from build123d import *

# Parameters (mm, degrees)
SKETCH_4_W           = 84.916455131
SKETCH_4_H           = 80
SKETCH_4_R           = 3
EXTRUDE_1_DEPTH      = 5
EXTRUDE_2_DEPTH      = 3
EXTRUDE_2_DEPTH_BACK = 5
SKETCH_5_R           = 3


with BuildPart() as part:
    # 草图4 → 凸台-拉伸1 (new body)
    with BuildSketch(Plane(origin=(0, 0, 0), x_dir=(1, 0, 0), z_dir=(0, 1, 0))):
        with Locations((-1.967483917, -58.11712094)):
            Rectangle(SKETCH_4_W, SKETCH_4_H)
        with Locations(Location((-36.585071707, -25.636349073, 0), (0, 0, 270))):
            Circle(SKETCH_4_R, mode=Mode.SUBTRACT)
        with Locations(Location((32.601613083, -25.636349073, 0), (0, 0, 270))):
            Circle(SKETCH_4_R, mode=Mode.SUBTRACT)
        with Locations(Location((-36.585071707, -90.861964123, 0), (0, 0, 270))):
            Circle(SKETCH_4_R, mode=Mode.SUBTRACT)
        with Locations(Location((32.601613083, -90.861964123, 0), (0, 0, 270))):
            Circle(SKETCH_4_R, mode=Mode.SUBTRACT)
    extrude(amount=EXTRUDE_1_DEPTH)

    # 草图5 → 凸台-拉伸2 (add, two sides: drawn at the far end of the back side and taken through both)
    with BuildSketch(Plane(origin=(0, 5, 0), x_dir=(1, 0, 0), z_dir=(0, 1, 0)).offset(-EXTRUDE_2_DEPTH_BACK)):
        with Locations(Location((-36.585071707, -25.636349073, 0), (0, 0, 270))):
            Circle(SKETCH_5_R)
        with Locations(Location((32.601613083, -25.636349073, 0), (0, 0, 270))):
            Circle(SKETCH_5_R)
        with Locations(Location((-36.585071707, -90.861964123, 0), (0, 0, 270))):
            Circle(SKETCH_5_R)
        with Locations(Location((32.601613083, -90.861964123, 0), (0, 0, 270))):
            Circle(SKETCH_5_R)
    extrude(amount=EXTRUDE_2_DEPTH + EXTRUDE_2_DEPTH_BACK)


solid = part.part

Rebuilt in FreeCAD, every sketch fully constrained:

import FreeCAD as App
import Part
import Sketcher

doc = App.newDocument("Part")
params = doc.addObject("Spreadsheet::Sheet", "Params")
for row, (alias, value) in enumerate([
    ("sketch1_diameter", "6 mm"),
    ("sketch1_height", "80 mm"),
    ("pad1_length", "5 mm"),
    ("sketch2_diameter", "6 mm"),
    ("pad2_length", "3 mm"),
    ("pad2_length2", "5 mm"),
], start=1):
    params.set(f"A{row}", alias)
    params.set(f"B{row}", "=" + value)
    params.setAlias(f"B{row}", alias)

body = doc.addObject("PartDesign::Body", "Body")

# Sketch on XZ plane
sketch1 = body.newObject("Sketcher::SketchObject", "Sketch")
sketch1.AttachmentSupport = (doc.getObject("XZ_Plane"), [""])
sketch1.MapMode = "FlatFace"
sketch1.addGeometry([
    Part.LineSegment(App.Vector(-44.425711, 18.117121, 0), App.Vector(-44.425711, 98.117121, 0)),  # 0
    Part.LineSegment(App.Vector(-44.425711, 98.117121, 0), App.Vector(40.490744, 98.117121, 0)),  # 1
    Part.LineSegment(App.Vector(40.490744, 98.117121, 0), App.Vector(40.490744, 18.117121, 0)),  # 2
    Part.LineSegment(App.Vector(40.490744, 18.117121, 0), App.Vector(-44.425711, 18.117121, 0)),  # 3
    Part.Circle(App.Vector(-36.585072, 90.861964, 0), App.Vector(0, 0, 1), 3),  # 4
    Part.Circle(App.Vector(32.601613, 90.861964, 0), App.Vector(0, 0, 1), 3),  # 5
    Part.Circle(App.Vector(-36.585072, 25.636349, 0), App.Vector(0, 0, 1), 3),  # 6
    Part.Circle(App.Vector(32.601613, 25.636349, 0), App.Vector(0, 0, 1), 3),  # 7
], False)
sketch1.addConstraint([
    Sketcher.Constraint("Coincident", 0, 2, 1, 1),
    Sketcher.Constraint("Coincident", 1, 2, 2, 1),
    Sketcher.Constraint("Coincident", 2, 2, 3, 1),
    Sketcher.Constraint("Coincident", 3, 2, 0, 1),
    Sketcher.Constraint("Vertical", 0),
    Sketcher.Constraint("Horizontal", 1),
    Sketcher.Constraint("Vertical", 2),
    Sketcher.Constraint("Horizontal", 3),
    Sketcher.Constraint("Equal", 4, 5),
    Sketcher.Constraint("Equal", 5, 6),
    Sketcher.Constraint("Equal", 6, 7),
    Sketcher.Constraint("Horizontal", 4, 3, 5, 3),
    Sketcher.Constraint("Horizontal", 6, 3, 7, 3),
    Sketcher.Constraint("Vertical", 4, 3, 6, 3),
    Sketcher.Constraint("Vertical", 5, 3, 7, 3),
    Sketcher.Constraint("Diameter", 4, 6.0),
    Sketcher.Constraint("DistanceY", 0, 1, 0, 2, 80.0),
    Sketcher.Constraint("DistanceX", 1, 1, 1, 2, 84.916455),
    Sketcher.Constraint("DistanceX", 4, 3, -1, 1, 36.585072),
    Sketcher.Constraint("DistanceY", -1, 1, 6, 3, 25.636349),
    Sketcher.Constraint("DistanceX", 0, 2, -1, 1, 44.425711),
    Sketcher.Constraint("DistanceY", -1, 1, 0, 2, 98.117121),
    Sketcher.Constraint("DistanceX", 5, 3, 1, 2, 7.889131),
    Sketcher.Constraint("DistanceY", -1, 1, 4, 3, 90.861964),
])
sketch1.setExpression("Constraints[15]", "Params.sketch1_diameter")
sketch1.setExpression("Constraints[16]", "Params.sketch1_height")
pad1 = body.newObject("PartDesign::Pad", "Pad")
pad1.Profile = sketch1
pad1.setExpression("Length", "Params.pad1_length")
pad1.Reversed = True

# Sketch on XZ plane
sketch2 = body.newObject("Sketcher::SketchObject", "Sketch001")
sketch2.AttachmentSupport = (doc.getObject("XZ_Plane"), [""])
sketch2.MapMode = "FlatFace"
sketch2.AttachmentOffset = App.Placement(App.Vector(0, 0, -5), App.Rotation())
sketch2.addGeometry([
    Part.Circle(App.Vector(-36.585072, 25.636349, 0), App.Vector(0, 0, 1), 3),
    Part.Circle(App.Vector(32.601613, 25.636349, 0), App.Vector(0, 0, 1), 3),
    Part.Circle(App.Vector(-36.585072, 90.861964, 0), App.Vector(0, 0, 1), 3),
    Part.Circle(App.Vector(32.601613, 90.861964, 0), App.Vector(0, 0, 1), 3),
], False)
sketch2.addConstraint([
    Sketcher.Constraint("Equal", 0, 1),
    Sketcher.Constraint("Equal", 1, 2),
    Sketcher.Constraint("Equal", 2, 3),
    Sketcher.Constraint("Horizontal", 0, 3, 1, 3),
    Sketcher.Constraint("Horizontal", 2, 3, 3, 3),
    Sketcher.Constraint("Vertical", 0, 3, 2, 3),
    Sketcher.Constraint("Vertical", 1, 3, 3, 3),
    Sketcher.Constraint("Diameter", 0, 6.0),
    Sketcher.Constraint("DistanceX", 0, 3, -1, 1, 36.585072),
    Sketcher.Constraint("DistanceY", -1, 1, 0, 3, 25.636349),
    Sketcher.Constraint("DistanceX", -1, 1, 1, 3, 32.601613),
    Sketcher.Constraint("DistanceY", -1, 1, 2, 3, 90.861964),
])
sketch2.setExpression("Constraints[7]", "Params.sketch2_diameter")
pad2 = body.newObject("PartDesign::Pad", "Pad001")
pad2.Profile = sketch2
pad2.Type = "TwoLengths"
pad2.setExpression("Length", "Params.pad2_length")
pad2.setExpression("Length2", "Params.pad2_length2")
pad2.Reversed = True

doc.recompute()
